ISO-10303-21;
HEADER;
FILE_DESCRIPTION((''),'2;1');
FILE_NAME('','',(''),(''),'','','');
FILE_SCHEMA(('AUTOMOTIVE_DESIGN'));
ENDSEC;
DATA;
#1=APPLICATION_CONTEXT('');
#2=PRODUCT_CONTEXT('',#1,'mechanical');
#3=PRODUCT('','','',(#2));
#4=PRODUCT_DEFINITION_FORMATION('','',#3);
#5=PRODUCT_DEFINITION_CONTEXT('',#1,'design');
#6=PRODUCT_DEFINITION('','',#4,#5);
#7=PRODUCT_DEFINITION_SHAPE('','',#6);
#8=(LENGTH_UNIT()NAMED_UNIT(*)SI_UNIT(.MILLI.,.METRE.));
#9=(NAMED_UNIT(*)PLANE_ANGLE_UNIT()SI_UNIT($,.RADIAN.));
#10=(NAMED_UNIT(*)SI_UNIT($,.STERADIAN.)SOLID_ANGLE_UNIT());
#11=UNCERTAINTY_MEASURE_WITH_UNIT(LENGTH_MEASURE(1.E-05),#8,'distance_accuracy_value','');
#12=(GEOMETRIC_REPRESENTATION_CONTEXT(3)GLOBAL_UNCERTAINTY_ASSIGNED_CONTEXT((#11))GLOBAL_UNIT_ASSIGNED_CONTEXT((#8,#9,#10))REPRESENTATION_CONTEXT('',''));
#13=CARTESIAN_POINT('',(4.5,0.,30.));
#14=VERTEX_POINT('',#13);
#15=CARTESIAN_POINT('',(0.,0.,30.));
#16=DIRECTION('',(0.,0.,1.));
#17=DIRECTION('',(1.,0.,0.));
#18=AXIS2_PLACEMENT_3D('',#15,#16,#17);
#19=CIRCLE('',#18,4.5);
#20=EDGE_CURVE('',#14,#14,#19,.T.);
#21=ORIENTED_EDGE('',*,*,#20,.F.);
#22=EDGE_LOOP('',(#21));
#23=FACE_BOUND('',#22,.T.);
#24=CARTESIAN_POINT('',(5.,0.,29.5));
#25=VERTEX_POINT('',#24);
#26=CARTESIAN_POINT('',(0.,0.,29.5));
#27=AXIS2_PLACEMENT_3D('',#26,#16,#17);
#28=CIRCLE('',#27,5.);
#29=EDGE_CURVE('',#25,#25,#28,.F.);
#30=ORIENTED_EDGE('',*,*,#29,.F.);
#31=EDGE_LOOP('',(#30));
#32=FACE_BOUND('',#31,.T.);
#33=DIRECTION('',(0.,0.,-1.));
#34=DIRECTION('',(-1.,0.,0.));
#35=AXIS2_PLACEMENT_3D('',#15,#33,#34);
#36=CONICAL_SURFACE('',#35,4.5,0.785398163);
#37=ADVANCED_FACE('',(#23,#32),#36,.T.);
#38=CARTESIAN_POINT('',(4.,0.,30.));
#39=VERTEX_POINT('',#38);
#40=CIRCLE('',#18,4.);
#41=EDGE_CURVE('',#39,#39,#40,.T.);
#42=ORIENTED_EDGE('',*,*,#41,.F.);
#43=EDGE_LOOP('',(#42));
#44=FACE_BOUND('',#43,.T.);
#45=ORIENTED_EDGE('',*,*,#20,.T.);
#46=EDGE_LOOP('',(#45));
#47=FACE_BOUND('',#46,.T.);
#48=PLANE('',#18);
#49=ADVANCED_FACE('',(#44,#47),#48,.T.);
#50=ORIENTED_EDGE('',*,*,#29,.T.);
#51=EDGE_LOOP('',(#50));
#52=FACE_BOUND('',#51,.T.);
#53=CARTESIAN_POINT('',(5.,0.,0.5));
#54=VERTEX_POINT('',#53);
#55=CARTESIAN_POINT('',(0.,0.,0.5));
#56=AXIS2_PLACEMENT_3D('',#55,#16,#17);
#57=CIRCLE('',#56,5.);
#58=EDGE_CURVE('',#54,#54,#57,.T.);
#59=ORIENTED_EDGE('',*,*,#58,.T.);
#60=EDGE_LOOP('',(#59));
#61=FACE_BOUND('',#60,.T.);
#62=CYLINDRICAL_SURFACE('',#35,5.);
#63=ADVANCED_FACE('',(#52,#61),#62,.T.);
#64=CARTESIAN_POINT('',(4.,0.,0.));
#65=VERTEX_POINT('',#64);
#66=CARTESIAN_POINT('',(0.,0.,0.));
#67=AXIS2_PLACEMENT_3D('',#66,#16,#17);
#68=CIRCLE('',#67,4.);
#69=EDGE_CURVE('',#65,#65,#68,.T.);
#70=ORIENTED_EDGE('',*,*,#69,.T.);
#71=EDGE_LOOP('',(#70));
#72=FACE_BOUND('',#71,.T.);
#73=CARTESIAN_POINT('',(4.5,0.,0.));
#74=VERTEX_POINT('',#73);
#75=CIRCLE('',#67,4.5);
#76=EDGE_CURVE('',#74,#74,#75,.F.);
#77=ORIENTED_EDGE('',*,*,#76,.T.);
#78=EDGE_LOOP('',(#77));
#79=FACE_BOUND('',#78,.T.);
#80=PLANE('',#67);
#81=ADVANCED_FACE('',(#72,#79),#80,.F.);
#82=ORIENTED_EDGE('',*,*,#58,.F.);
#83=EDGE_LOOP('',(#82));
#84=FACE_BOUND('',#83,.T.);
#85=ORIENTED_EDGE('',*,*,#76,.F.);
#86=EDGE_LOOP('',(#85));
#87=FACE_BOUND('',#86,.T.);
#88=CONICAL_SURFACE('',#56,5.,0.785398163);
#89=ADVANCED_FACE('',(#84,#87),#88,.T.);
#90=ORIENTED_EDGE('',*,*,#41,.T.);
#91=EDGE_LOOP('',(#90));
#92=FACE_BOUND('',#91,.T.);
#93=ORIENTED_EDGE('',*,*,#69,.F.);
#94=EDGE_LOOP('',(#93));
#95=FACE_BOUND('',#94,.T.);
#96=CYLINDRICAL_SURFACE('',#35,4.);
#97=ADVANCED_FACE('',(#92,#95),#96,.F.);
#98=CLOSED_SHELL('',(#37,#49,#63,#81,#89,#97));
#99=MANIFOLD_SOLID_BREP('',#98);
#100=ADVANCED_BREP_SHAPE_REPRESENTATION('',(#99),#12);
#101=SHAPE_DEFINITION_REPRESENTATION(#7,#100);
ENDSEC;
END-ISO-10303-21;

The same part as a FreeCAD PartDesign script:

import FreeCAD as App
import Part
import Sketcher
from FreeCAD import Vector


def edges_at(feature, points):
    """Names of the edges that pass closest to the given points."""
    edges = feature.Shape.Edges
    near = lambda p: min(range(len(edges)), key=lambda i: edges[i].distToShape(Part.Vertex(*p))[0])
    return sorted({f"Edge{near(p) + 1}" for p in points})

doc = App.newDocument("Part")
params = doc.addObject("Spreadsheet::Sheet", "Params")
for row, (alias, value) in enumerate([
    ("sketch1_diameter", "10 mm"),
    ("sketch1_diameter2", "8 mm"),
    ("pad1_length", "30 mm"),
    ("chamfer_size", "0.5 mm"),
], start=1):
    params.set(f"A{row}", alias)
    params.set(f"B{row}", "=" + value)
    params.setAlias(f"B{row}", alias)

body = doc.addObject("PartDesign::Body", "Body")

# Sketch on XY plane
sketch1 = doc.addObject("Sketcher::SketchObject", "Sketch")
body.addObject(sketch1)
sketch1.AttachmentSupport = (doc.XY_Plane, [""])
sketch1.MapMode = "FlatFace"
sketch1.addGeometry(Part.Circle(Vector(0, 0, 0), Vector(0, 0, 1), 5), False)
sketch1.addGeometry(Part.Circle(Vector(0, 0, 0), Vector(0, 0, 1), 4), False)
sketch1.addConstraint(Sketcher.Constraint("Coincident", 0, 3, -1, 1))
sketch1.addConstraint(Sketcher.Constraint("Coincident", 1, 3, -1, 1))
sketch1.addConstraint(Sketcher.Constraint("Diameter", 0, 10.0))
sketch1.addConstraint(Sketcher.Constraint("Diameter", 1, 8.0))
sketch1.setExpression("Constraints[2]", "Params.sketch1_diameter")
sketch1.setExpression("Constraints[3]", "Params.sketch1_diameter2")
pad1 = doc.addObject("PartDesign::Pad", "Pad")
body.addObject(pad1)
pad1.Profile = sketch1
pad1.setExpression("Length", "Params.pad1_length")
doc.recompute()

chamfer = doc.addObject("PartDesign::Chamfer", "Chamfer")
body.addObject(chamfer)
chamfer.Base = (pad1, edges_at(pad1, [(-5, 0, 0), (-5, 0, 30)]))
chamfer.setExpression("Size", "Params.chamfer_size")

doc.recompute()
